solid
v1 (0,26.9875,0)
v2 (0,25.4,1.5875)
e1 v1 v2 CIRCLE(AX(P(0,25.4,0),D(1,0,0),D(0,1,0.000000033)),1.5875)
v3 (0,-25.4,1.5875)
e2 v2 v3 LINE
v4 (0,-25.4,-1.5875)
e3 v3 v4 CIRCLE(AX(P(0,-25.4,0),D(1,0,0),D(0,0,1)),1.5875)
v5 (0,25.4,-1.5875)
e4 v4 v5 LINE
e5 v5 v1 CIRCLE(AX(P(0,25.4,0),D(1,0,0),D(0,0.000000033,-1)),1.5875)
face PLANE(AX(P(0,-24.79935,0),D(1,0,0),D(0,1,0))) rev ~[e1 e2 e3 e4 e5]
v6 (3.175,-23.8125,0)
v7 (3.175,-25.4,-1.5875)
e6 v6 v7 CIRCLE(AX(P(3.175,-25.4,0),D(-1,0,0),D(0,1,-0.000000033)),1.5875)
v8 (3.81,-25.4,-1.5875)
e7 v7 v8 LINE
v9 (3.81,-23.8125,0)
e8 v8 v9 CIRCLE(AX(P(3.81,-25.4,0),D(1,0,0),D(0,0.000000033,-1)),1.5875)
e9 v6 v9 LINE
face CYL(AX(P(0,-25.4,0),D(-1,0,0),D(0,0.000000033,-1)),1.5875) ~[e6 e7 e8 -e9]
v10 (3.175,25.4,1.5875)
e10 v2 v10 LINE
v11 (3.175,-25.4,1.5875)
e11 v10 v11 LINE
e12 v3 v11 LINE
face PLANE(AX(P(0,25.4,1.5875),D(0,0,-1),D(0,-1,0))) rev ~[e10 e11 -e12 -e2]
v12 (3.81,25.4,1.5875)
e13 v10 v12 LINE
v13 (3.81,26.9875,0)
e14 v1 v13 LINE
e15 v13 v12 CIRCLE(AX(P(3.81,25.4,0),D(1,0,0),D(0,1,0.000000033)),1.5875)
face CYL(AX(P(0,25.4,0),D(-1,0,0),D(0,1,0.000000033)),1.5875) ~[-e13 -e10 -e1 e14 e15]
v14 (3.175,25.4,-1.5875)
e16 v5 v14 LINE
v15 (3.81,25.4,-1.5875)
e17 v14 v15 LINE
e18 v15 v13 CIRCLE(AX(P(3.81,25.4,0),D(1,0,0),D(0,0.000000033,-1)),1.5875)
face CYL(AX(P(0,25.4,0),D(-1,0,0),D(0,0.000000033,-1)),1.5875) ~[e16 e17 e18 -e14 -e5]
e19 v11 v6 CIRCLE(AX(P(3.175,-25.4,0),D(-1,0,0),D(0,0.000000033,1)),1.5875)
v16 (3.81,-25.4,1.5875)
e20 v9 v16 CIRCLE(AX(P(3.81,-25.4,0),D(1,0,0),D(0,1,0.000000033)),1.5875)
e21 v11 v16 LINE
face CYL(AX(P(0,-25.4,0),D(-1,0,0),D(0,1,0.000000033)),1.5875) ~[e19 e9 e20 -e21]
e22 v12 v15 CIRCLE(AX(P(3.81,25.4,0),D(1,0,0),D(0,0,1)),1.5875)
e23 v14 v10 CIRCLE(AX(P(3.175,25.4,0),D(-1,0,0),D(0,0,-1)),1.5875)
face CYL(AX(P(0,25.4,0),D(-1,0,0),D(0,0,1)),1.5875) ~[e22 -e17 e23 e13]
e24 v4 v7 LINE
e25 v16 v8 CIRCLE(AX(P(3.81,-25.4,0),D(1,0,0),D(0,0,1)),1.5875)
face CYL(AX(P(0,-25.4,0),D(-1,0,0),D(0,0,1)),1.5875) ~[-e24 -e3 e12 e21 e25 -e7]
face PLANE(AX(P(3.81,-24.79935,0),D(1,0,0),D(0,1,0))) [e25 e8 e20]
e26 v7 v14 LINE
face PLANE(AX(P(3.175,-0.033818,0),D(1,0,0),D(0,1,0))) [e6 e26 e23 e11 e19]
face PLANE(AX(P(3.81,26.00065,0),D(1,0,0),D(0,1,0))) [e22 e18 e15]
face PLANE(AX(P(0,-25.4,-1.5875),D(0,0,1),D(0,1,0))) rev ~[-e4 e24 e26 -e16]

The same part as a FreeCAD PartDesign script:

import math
import FreeCAD as App
import Part
import Sketcher
from FreeCAD import Vector
Q = App.Units.Quantity

doc = App.newDocument("Part")
body = doc.addObject("PartDesign::Body", "Body")

sketch1 = doc.addObject("Sketcher::SketchObject", "Sketch")
body.addObject(sketch1)
sketch1.AttachmentSupport = (doc.YZ_Plane, [""])
sketch1.MapMode = "FlatFace"
sketch1.addGeometry(Part.ArcOfCircle(Part.Circle(Vector(25.4, 0, 0), Vector(0, 0, 1), 1.6), math.radians(90), math.radians(270)), False)
sketch1.addGeometry(Part.LineSegment(Vector(25.4, 1.6, 0), Vector(-25.4, 1.6, 0)), False)
sketch1.addGeometry(Part.ArcOfCircle(Part.Circle(Vector(-25.4, 0, 0), Vector(0, 0, 1), 1.6), math.radians(0), math.radians(90)), False)
sketch1.addGeometry(Part.ArcOfCircle(Part.Circle(Vector(-25.4, 0, 0), Vector(0, 0, 1), 1.6), math.radians(-90), math.radians(0)), False)
sketch1.addGeometry(Part.LineSegment(Vector(-25.4, -1.6, 0), Vector(25.4, -1.6, 0)), False)
sketch1.addConstraint(Sketcher.Constraint("Tangent", 0, 1, 1, 1))
sketch1.addConstraint(Sketcher.Constraint("Tangent", 1, 2, 2, 2))
sketch1.addConstraint(Sketcher.Constraint("Tangent", 2, 1, 3, 2))
sketch1.addConstraint(Sketcher.Constraint("Tangent", 3, 1, 4, 1))
sketch1.addConstraint(Sketcher.Constraint("Tangent", 4, 2, 0, 2))
sketch1.addConstraint(Sketcher.Constraint("Horizontal", 1))
sketch1.addConstraint(Sketcher.Constraint("Horizontal", 4))
sketch1.addConstraint(Sketcher.Constraint("Equal", 0, 2))
sketch1.addConstraint(Sketcher.Constraint("Symmetric", 0, 3, 2, 3, -1, 1))
sketch1.addConstraint(Sketcher.Constraint("PointOnObject", 2, 1, -1))
sketch1.addConstraint(Sketcher.Constraint("DistanceX", 1, 2, 1, 1, Q("2 in")))
sketch1.addConstraint(Sketcher.Constraint("Radius", 0, Q("0.0625 in")))
pad1 = doc.addObject("PartDesign::Pad", "Pad")
body.addObject(pad1)
pad1.Profile = sketch1
pad1.Length = Q("0.125 in")

sketch2 = doc.addObject("Sketcher::SketchObject", "Sketch001")
body.addObject(sketch2)
sketch2.AttachmentSupport = (doc.YZ_Plane, [""])
sketch2.MapMode = "FlatFace"
sketch2.addGeometry(Part.ArcOfCircle(Part.Circle(Vector(-25.4, 0, 0), Vector(0, 0, 1), 1.6), math.radians(0), math.radians(90)), False)
sketch2.addGeometry(Part.ArcOfCircle(Part.Circle(Vector(-25.4, 0, 0), Vector(0, 0, 1), 1.6), math.radians(90), math.radians(270)), False)
sketch2.addGeometry(Part.ArcOfCircle(Part.Circle(Vector(-25.4, 0, 0), Vector(0, 0, 1), 1.6), math.radians(-90), math.radians(0)), False)
sketch2.addGeometry(Part.ArcOfCircle(Part.Circle(Vector(25.4, 0, 0), Vector(0, 0, 1), 1.6), math.radians(0), math.radians(90)), False)
sketch2.addGeometry(Part.ArcOfCircle(Part.Circle(Vector(25.4, 0, 0), Vector(0, 0, 1), 1.6), math.radians(90), math.radians(270)), False)
sketch2.addGeometry(Part.ArcOfCircle(Part.Circle(Vector(25.4, 0, 0), Vector(0, 0, 1), 1.6), math.radians(-90), math.radians(0)), False)
sketch2.addConstraint(Sketcher.Constraint("Tangent", 0, 2, 1, 1))
sketch2.addConstraint(Sketcher.Constraint("Tangent", 1, 2, 2, 1))
sketch2.addConstraint(Sketcher.Constraint("Tangent", 2, 2, 0, 1))
sketch2.addConstraint(Sketcher.Constraint("Tangent", 3, 2, 4, 1))
sketch2.addConstraint(Sketcher.Constraint("Tangent", 4, 2, 5, 1))
sketch2.addConstraint(Sketcher.Constraint("Tangent", 5, 2, 3, 1))
sketch2.addConstraint(Sketcher.Constraint("Equal", 2, 3))
sketch2.addConstraint(Sketcher.Constraint("Symmetric", 0, 3, 3, 3, -1, 1))
sketch2.addConstraint(Sketcher.Constraint("Symmetric", 0, 2, 3, 2, -2))
sketch2.addConstraint(Sketcher.Constraint("PointOnObject", 2, 2, -1))
sketch2.addConstraint(Sketcher.Constraint("PointOnObject", 5, 2, -1))
sketch2.addConstraint(Sketcher.Constraint("Vertical", 2, 3, 0, 2))
sketch2.addConstraint(Sketcher.Constraint("Vertical", 0, 2, 1, 2))
sketch2.addConstraint(Sketcher.Constraint("Vertical", 3, 2, 4, 2))
sketch2.addConstraint(Sketcher.Constraint("DistanceX", 0, 3, -1, 1, Q("1 in")))
sketch2.addConstraint(Sketcher.Constraint("Radius", 0, Q("0.0625 in")))
pad2 = doc.addObject("PartDesign::Pad", "Pad001")
body.addObject(pad2)
pad2.Profile = sketch2
pad2.Length = Q("0.15 in")

doc.recompute()
